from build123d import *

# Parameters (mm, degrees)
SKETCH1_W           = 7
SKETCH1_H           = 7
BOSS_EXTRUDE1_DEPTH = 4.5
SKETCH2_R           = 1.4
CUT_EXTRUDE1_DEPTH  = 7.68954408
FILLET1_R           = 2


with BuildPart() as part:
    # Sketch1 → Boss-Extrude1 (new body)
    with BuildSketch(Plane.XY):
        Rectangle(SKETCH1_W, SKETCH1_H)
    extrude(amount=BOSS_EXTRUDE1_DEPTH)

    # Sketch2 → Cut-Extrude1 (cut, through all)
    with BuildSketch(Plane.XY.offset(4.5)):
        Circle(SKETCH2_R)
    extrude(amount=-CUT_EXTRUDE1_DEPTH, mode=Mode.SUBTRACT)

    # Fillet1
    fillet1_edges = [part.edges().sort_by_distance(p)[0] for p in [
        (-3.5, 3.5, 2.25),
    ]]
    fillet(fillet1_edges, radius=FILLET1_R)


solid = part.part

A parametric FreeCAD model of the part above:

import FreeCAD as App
import Part
import Sketcher
Q = App.Units.Quantity


def edges_at(feature, points):
    """Names of the edges that pass closest to the given points."""
    edges = feature.Shape.Edges
    near = lambda p: min(range(len(edges)), key=lambda i: edges[i].distToShape(Part.Vertex(*p))[0])
    return sorted({f"Edge{near(p) + 1}" for p in points})

doc = App.newDocument("Part")
params = doc.addObject("Spreadsheet::Sheet", "Params")
for row, (alias, value) in enumerate([
    ("sketch1_width", "7 mm"),
    ("pad1_length", "4.5 mm"),
    ("sketch2_diameter", "2.8 mm"),
    ("fillet_radius", "2 mm"),
], start=1):
    params.set(f"A{row}", alias)
    params.set(f"B{row}", "=" + value)
    params.setAlias(f"B{row}", alias)

body = doc.addObject("PartDesign::Body", "Body")

# Sketch on XY plane
sketch1 = doc.addObject("Sketcher::SketchObject", "Sketch")
body.addObject(sketch1)
sketch1.AttachmentSupport = (doc.XY_Plane, [""])
sketch1.MapMode = "FlatFace"
sketch1.addGeometry(Part.LineSegment(App.Vector(-4, 4, 0), App.Vector(-4, -4, 0)), False)
sketch1.addGeometry(Part.LineSegment(App.Vector(-4, -4, 0), App.Vector(4, -4, 0)), False)
sketch1.addGeometry(Part.LineSegment(App.Vector(4, -4, 0), App.Vector(4, 4, 0)), False)
sketch1.addGeometry(Part.LineSegment(App.Vector(4, 4, 0), App.Vector(-4, 4, 0)), False)
sketch1.addConstraint(Sketcher.Constraint("Coincident", 0, 2, 1, 1))
sketch1.addConstraint(Sketcher.Constraint("Coincident", 1, 2, 2, 1))
sketch1.addConstraint(Sketcher.Constraint("Coincident", 2, 2, 3, 1))
sketch1.addConstraint(Sketcher.Constraint("Coincident", 3, 2, 0, 1))
sketch1.addConstraint(Sketcher.Constraint("Vertical", 0))
sketch1.addConstraint(Sketcher.Constraint("Horizontal", 1))
sketch1.addConstraint(Sketcher.Constraint("Vertical", 2))
sketch1.addConstraint(Sketcher.Constraint("Horizontal", 3))
sketch1.addConstraint(Sketcher.Constraint("Symmetric", 0, 2, 2, 2, -1, 1))
sketch1.addConstraint(Sketcher.Constraint("Equal", 3, 0))
sketch1.addConstraint(Sketcher.Constraint("DistanceX", 1, 1, 1, 2, Q("7 mm")))
sketch1.setExpression("Constraints[10]", "Params.sketch1_width")
pad1 = doc.addObject("PartDesign::Pad", "Pad")
body.addObject(pad1)
pad1.Profile = sketch1
pad1.setExpression("Length", "Params.pad1_length")

# Sketch on XY plane
sketch2 = doc.addObject("Sketcher::SketchObject", "Sketch001")
body.addObject(sketch2)
sketch2.AttachmentSupport = (doc.XY_Plane, [""])
sketch2.MapMode = "FlatFace"
sketch2.AttachmentOffset = App.Placement(App.Vector(0, 0, 4.5), App.Rotation())
sketch2.addGeometry(Part.Circle(App.Vector(0, 0, 0), App.Vector(0, 0, 1), 1.4), False)
sketch2.addConstraint(Sketcher.Constraint("Coincident", 0, 3, -1, 1))
sketch2.addConstraint(Sketcher.Constraint("Diameter", 0, Q("2.8 mm")))
sketch2.setExpression("Constraints[1]", "Params.sketch2_diameter")
pocket1 = doc.addObject("PartDesign::Pocket", "Pocket")
body.addObject(pocket1)
pocket1.Profile = sketch2
pocket1.Type = "ThroughAll"
doc.recompute()

fillet = doc.addObject("PartDesign::Fillet", "Fillet")
body.addObject(fillet)
fillet.Base = (pocket1, edges_at(pocket1, [(-3.5, 3.5, 2.25)]))
fillet.setExpression("Radius", "Params.fillet_radius")

doc.recompute()
